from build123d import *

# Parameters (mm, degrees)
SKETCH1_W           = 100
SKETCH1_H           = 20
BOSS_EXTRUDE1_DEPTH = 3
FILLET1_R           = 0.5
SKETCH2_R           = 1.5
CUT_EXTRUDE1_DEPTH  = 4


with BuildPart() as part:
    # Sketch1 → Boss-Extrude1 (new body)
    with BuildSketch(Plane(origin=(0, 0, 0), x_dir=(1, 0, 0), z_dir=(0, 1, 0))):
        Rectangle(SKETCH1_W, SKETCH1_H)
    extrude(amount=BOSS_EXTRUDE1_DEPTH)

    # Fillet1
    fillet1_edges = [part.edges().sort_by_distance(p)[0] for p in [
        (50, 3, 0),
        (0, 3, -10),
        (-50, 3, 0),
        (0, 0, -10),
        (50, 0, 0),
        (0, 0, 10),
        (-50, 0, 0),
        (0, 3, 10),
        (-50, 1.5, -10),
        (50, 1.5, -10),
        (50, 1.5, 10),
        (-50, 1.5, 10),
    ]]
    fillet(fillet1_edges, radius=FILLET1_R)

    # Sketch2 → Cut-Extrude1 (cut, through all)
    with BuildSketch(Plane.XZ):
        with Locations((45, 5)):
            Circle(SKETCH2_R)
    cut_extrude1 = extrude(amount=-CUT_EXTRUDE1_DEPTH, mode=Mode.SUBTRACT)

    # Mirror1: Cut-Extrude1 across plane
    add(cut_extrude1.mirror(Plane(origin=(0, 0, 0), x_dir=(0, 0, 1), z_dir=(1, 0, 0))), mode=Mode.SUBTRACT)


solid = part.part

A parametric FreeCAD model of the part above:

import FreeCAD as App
import Part
import Sketcher

V = App.Vector
Q = App.Units.Quantity

doc = App.newDocument("Part")
body = doc.addObject("PartDesign::Body", "Body")

# Sketch on XZ plane
sketch1 = body.newObject("Sketcher::SketchObject", "Sketch")
sketch1.AttachmentSupport = (doc.getObject("XZ_Plane"), [""])
sketch1.MapMode = "FlatFace"
sketch1.addGeometry([
    Part.LineSegment(V(-50, -10, 0), V(-50, 10, 0)),
    Part.LineSegment(V(-50, 10, 0), V(50, 10, 0)),
    Part.LineSegment(V(50, 10, 0), V(50, -10, 0)),
    Part.LineSegment(V(50, -10, 0), V(-50, -10, 0)),
], False)
sketch1.addConstraint([
    Sketcher.Constraint("Coincident", 0, 2, 1, 1),
    Sketcher.Constraint("Coincident", 1, 2, 2, 1),
    Sketcher.Constraint("Coincident", 2, 2, 3, 1),
    Sketcher.Constraint("Coincident", 3, 2, 0, 1),
    Sketcher.Constraint("Vertical", 0),
    Sketcher.Constraint("Horizontal", 1),
    Sketcher.Constraint("Vertical", 2),
    Sketcher.Constraint("Horizontal", 3),
    Sketcher.Constraint("Symmetric", 0, 2, 2, 2, -1, 1),
    Sketcher.Constraint("DistanceX", 1, 1, 1, 2, Q("100 mm")),
    Sketcher.Constraint("DistanceY", 0, 1, 0, 2, Q("20 mm")),
])
pad1 = body.newObject("PartDesign::Pad", "Pad")
pad1.Profile = sketch1
pad1.Length = 3
pad1.Reversed = True
doc.recompute()

fillet = body.newObject("PartDesign::Fillet", "Fillet")
fillet.Base = (pad1, ["Edge1"])
fillet.UseAllEdges = True
fillet.Radius = 0.5

# Sketch on XZ plane
sketch2 = body.newObject("Sketcher::SketchObject", "Sketch001")
sketch2.AttachmentSupport = (doc.getObject("XZ_Plane"), [""])
sketch2.MapMode = "FlatFace"
sketch2.addGeometry(Part.Circle(V(45, 5, 0), V(0, 0, 1), 1.5), False)
sketch2.addConstraint([
    Sketcher.Constraint("Diameter", 0, Q("3 mm")),
    Sketcher.Constraint("DistanceX", -1, 1, 0, 3, Q("45 mm")),
    Sketcher.Constraint("DistanceY", -1, 1, 0, 3, Q("5 mm")),
])
pocket1 = body.newObject("PartDesign::Pocket", "Pocket")
pocket1.Profile = sketch2
pocket1.Type = "ThroughAll"
doc.recompute()

mirrored = body.newObject("PartDesign::Mirrored", "Mirrored")
mirrored.Originals = [pocket1]
mirrored.MirrorPlane = (doc.getObject("YZ_Plane"), [""])
body.Tip = mirrored

doc.recompute()
